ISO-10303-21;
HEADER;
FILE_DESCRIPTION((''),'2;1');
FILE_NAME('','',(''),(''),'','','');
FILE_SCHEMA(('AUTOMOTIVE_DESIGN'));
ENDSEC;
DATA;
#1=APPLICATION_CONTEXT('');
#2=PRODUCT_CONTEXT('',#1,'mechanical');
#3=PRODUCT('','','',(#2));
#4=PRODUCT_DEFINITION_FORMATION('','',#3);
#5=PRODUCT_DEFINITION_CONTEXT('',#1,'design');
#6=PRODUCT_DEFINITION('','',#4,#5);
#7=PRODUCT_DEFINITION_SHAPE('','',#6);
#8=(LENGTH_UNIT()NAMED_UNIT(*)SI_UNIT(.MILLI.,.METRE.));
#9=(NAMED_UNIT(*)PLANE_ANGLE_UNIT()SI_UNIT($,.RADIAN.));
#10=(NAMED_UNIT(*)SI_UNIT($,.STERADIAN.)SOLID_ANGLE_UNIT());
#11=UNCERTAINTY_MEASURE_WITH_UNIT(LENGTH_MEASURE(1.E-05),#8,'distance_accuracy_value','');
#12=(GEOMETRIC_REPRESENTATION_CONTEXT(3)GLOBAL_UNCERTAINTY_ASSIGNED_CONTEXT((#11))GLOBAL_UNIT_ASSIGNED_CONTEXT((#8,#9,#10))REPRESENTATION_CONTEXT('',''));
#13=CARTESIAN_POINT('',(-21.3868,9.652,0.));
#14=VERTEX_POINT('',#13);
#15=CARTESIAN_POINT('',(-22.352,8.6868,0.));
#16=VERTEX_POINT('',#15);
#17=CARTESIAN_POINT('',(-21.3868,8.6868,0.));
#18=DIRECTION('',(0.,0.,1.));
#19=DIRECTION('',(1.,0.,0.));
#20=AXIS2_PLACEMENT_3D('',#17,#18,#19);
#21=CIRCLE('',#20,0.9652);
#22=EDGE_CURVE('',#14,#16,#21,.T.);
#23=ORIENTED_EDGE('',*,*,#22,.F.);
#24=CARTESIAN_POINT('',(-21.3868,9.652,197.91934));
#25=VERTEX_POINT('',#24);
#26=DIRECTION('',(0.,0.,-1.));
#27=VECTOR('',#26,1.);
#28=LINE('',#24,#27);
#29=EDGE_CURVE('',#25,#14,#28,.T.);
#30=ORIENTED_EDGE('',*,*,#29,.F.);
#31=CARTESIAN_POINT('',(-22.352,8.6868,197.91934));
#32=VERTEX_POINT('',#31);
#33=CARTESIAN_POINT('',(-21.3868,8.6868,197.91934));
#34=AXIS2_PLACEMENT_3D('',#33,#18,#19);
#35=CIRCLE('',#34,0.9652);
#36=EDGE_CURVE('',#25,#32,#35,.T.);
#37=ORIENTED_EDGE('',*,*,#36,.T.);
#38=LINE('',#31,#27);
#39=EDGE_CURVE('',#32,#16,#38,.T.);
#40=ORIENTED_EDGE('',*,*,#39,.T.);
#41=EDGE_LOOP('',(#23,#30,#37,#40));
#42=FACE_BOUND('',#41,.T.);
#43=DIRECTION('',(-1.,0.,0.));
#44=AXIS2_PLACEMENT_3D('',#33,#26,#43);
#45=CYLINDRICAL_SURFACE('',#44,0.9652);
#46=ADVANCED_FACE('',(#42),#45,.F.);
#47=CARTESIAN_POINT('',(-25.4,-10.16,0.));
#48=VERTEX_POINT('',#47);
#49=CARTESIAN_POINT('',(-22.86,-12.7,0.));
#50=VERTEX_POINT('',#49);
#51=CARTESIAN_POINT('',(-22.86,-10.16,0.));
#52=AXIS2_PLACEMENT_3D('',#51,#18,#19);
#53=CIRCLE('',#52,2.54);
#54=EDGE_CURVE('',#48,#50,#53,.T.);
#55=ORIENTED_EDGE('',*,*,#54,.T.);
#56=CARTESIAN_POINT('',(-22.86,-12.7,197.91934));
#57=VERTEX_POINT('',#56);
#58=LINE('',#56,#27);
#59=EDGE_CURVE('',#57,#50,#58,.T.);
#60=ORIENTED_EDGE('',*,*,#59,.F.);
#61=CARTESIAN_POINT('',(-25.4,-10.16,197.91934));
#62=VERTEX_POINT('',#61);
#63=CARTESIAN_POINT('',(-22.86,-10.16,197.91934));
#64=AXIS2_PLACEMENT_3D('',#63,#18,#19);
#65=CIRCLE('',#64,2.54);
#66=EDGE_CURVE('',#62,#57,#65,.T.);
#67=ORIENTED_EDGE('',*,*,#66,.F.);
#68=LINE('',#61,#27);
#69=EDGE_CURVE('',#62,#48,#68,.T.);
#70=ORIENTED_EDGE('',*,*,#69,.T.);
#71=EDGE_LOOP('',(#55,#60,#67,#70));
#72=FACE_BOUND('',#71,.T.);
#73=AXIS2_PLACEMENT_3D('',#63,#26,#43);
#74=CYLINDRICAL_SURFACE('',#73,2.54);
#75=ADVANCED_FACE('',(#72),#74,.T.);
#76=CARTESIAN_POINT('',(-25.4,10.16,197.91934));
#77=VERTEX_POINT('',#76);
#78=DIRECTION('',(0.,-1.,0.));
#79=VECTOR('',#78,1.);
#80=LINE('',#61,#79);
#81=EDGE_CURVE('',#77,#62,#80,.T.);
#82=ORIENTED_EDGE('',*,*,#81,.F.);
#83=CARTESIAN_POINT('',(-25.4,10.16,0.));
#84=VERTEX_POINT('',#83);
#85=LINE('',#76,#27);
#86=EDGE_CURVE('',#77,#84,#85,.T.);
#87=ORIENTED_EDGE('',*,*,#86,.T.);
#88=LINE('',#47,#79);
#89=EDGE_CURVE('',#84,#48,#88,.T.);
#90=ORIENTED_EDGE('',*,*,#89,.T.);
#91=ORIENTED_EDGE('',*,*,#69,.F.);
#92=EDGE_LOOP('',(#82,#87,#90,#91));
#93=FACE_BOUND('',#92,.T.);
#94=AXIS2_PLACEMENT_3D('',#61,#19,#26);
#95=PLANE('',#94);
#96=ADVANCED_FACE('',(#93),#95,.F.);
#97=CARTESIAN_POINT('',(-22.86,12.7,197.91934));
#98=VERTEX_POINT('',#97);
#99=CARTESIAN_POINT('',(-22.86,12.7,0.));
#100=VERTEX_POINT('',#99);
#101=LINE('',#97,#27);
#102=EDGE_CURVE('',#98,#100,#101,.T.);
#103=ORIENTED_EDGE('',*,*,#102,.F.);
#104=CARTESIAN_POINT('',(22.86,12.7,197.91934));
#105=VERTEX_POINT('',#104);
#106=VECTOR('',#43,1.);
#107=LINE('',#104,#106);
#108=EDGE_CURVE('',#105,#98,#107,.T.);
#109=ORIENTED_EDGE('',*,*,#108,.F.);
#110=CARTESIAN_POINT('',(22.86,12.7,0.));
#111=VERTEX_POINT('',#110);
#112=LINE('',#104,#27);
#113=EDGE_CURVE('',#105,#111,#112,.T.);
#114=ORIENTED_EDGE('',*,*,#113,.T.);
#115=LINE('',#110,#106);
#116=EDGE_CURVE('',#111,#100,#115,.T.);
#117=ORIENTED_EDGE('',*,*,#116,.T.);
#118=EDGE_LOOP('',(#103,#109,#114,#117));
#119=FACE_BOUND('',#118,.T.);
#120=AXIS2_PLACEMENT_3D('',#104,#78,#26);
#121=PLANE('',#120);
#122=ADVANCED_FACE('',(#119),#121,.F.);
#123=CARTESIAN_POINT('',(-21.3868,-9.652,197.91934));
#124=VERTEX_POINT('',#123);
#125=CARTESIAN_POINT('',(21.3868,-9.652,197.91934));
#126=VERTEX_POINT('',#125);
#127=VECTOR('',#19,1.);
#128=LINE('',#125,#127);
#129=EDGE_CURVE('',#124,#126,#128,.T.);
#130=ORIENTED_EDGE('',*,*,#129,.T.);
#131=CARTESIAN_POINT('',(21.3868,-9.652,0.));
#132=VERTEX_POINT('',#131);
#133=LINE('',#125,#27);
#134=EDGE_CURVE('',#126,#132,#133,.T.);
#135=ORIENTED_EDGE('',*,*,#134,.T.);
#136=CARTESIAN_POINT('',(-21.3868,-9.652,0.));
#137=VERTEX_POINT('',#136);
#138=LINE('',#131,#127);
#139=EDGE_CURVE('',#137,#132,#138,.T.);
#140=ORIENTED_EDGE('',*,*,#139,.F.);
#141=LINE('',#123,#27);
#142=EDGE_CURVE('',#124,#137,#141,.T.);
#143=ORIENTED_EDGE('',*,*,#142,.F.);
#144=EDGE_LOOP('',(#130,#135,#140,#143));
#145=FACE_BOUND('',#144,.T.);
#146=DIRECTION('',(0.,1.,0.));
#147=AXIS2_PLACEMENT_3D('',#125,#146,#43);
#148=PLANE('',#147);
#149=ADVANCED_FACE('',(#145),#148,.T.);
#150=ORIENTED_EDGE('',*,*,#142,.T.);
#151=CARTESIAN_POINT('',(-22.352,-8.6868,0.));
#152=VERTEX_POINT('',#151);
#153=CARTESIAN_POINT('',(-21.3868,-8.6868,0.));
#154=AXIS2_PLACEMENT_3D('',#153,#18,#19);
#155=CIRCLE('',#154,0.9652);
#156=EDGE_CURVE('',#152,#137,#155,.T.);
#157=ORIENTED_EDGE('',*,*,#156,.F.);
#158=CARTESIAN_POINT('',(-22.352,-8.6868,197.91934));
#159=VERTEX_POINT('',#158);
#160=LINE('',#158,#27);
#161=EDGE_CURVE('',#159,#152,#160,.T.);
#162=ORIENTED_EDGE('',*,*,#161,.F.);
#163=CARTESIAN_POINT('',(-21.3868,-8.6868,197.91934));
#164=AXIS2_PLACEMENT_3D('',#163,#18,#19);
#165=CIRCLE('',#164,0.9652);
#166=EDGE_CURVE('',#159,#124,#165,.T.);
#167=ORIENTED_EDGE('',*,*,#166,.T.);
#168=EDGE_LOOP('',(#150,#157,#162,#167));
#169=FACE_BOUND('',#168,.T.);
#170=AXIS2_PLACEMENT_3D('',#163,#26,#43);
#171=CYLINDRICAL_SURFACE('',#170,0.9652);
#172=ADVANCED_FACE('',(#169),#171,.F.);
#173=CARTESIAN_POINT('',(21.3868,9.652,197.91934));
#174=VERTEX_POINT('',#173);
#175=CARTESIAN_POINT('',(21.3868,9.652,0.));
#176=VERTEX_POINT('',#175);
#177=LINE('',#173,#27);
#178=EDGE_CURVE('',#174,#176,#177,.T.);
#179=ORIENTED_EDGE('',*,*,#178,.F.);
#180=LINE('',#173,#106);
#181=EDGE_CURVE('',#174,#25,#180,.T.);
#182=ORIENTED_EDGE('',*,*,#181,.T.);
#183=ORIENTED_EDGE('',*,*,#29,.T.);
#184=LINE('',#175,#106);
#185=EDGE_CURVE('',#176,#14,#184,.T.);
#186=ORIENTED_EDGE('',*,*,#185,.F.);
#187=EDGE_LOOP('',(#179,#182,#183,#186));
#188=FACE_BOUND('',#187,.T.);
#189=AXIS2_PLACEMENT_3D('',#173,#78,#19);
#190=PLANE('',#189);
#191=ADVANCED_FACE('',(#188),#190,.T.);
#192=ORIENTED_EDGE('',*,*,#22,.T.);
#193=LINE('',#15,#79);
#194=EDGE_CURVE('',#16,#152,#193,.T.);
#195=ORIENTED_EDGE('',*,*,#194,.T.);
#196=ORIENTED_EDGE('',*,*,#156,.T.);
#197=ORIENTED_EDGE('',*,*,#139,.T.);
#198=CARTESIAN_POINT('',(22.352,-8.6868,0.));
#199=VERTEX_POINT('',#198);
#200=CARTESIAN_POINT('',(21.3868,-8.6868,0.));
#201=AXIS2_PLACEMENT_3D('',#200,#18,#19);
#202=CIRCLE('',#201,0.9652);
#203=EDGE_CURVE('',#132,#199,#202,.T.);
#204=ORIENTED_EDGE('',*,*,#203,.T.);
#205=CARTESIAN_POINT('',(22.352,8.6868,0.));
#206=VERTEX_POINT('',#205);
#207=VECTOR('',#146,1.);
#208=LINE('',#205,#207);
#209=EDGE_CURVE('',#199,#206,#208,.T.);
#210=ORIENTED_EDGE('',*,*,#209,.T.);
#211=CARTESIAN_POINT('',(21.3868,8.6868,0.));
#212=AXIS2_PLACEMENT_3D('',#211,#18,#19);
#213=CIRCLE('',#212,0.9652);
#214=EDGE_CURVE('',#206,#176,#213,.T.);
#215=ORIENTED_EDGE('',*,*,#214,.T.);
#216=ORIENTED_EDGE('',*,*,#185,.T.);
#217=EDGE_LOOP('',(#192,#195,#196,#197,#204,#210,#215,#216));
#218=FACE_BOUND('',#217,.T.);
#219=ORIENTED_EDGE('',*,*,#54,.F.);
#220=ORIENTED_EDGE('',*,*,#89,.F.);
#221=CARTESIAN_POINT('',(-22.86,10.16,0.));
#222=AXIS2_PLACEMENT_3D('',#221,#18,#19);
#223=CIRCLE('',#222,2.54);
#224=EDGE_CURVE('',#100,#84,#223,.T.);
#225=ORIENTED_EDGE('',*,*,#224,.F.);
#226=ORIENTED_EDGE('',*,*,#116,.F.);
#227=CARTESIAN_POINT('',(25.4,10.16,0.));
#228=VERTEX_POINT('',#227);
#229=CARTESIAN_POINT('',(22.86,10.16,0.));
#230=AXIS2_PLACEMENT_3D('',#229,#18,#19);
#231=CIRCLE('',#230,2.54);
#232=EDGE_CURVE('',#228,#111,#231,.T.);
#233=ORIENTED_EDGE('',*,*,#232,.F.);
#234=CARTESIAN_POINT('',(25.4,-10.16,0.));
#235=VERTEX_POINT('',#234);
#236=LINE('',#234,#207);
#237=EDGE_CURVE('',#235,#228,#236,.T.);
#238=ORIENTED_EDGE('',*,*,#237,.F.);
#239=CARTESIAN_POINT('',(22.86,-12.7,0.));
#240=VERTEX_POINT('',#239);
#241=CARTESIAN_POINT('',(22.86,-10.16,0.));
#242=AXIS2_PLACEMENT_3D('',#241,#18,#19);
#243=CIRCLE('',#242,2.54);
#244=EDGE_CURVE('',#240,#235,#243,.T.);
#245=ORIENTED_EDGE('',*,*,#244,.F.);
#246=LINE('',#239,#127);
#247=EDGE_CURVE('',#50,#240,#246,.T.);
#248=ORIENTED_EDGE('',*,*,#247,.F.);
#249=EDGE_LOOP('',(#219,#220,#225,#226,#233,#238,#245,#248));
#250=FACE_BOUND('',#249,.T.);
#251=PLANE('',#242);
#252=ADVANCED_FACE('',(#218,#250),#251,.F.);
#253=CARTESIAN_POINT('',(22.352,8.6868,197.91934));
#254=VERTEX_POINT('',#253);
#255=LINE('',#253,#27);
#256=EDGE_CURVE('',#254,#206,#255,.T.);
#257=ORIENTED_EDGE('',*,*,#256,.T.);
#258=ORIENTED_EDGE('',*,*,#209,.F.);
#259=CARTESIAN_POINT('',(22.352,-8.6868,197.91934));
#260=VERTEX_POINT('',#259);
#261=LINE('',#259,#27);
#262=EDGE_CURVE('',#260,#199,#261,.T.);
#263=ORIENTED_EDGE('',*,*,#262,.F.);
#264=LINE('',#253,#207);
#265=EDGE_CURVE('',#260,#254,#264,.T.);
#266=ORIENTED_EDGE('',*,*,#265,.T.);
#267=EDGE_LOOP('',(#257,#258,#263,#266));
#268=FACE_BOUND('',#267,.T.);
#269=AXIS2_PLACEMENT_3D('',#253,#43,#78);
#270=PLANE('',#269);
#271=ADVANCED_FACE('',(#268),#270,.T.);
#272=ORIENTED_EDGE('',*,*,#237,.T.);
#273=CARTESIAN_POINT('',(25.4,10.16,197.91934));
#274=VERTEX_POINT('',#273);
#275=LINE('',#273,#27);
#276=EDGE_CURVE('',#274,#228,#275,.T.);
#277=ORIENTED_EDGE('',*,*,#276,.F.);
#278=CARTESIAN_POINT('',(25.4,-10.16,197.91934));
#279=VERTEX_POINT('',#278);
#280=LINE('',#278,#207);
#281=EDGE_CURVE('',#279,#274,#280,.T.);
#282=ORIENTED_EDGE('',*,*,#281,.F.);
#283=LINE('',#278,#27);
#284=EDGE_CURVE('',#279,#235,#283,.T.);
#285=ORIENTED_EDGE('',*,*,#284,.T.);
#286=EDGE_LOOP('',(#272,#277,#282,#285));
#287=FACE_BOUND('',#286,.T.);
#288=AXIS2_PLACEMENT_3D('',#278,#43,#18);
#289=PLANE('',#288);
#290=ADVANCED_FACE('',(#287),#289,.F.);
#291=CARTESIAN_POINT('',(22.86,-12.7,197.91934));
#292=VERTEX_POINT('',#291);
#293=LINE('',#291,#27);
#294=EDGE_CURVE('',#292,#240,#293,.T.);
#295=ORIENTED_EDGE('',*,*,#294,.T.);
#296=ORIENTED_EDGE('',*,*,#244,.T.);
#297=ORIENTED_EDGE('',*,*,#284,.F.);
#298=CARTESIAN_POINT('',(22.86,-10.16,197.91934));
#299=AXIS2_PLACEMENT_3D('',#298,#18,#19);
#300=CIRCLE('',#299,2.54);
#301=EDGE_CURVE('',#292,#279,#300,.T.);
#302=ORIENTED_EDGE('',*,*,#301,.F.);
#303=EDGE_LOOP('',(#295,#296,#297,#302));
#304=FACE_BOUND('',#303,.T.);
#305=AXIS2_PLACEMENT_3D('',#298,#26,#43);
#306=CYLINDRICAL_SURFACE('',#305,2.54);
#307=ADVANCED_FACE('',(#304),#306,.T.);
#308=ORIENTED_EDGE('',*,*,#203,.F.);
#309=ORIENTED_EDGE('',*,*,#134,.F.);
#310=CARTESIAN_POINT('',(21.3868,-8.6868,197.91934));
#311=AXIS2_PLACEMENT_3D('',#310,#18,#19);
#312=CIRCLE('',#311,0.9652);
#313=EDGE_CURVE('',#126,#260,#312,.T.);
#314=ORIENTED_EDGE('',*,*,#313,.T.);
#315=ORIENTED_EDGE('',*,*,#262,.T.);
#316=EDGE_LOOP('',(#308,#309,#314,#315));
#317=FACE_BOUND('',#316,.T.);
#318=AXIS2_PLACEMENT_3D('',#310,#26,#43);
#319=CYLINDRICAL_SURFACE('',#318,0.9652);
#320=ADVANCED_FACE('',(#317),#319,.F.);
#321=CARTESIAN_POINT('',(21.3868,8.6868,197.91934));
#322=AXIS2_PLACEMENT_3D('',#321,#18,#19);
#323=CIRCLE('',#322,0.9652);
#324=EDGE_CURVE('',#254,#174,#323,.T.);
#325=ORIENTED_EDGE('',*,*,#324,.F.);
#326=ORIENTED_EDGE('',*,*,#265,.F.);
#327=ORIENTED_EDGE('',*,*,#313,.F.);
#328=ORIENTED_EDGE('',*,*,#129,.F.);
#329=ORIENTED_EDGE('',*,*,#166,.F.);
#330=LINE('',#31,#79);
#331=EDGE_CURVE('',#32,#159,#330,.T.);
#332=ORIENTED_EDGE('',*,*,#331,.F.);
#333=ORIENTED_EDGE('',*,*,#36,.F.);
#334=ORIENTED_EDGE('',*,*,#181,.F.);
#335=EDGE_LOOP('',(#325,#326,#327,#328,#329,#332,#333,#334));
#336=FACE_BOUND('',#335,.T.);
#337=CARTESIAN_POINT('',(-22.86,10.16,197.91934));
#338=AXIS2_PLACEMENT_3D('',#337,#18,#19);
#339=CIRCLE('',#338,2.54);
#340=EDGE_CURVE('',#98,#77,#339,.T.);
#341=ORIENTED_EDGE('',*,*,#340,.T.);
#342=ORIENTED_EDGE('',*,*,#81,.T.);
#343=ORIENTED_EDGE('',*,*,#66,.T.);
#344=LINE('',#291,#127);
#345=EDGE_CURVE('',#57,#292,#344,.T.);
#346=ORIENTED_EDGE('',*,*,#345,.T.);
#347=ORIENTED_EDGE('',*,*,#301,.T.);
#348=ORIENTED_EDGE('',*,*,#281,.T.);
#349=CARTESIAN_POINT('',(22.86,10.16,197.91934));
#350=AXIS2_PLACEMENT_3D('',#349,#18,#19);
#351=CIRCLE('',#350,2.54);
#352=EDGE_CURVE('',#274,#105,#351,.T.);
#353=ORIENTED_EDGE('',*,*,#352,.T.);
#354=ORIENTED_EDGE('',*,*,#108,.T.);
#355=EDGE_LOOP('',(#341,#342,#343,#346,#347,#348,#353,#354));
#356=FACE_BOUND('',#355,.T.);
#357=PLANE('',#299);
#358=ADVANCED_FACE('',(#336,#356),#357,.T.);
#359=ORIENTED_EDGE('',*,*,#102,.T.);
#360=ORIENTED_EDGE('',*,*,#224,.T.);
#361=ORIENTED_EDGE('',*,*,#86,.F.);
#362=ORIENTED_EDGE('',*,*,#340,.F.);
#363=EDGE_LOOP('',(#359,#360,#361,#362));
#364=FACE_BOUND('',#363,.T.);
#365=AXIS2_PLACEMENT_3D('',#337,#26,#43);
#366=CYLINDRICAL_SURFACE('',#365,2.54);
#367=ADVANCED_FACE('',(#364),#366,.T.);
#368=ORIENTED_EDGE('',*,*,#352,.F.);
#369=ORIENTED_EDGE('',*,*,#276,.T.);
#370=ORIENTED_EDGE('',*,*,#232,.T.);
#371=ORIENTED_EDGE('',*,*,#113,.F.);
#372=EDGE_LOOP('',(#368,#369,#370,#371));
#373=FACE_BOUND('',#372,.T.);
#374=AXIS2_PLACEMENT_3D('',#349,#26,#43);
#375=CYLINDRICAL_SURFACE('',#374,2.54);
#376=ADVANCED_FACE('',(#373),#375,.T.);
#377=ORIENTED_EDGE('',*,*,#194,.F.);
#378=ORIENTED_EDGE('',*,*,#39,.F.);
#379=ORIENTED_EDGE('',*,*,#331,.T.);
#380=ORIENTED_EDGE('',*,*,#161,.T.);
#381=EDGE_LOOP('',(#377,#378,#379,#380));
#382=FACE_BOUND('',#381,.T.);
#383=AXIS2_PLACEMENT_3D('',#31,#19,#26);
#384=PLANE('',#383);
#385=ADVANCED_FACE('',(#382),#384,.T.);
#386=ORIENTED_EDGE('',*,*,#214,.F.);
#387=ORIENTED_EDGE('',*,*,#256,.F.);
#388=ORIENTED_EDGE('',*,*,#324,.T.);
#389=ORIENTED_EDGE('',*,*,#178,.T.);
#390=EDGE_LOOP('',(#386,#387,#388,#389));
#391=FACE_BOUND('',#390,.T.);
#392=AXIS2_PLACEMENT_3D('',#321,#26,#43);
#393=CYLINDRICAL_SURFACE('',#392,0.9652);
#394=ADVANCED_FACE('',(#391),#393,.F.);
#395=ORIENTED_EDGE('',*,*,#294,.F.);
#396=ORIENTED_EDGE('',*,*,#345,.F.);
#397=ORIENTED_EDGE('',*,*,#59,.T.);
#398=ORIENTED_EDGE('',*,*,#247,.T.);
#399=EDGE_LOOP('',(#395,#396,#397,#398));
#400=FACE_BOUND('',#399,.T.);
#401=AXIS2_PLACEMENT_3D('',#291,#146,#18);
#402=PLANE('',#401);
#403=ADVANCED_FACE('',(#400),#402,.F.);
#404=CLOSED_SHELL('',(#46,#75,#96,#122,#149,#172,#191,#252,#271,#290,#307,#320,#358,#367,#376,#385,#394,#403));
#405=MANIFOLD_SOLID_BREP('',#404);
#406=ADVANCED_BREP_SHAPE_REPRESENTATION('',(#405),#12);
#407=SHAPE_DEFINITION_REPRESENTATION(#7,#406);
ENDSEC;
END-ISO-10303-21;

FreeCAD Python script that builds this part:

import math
import FreeCAD as App
import Part
import Sketcher
from FreeCAD import Vector
Q = App.Units.Quantity

doc = App.newDocument("Part")
body = doc.addObject("PartDesign::Body", "Body")

# Sketch on XY plane
sketch1 = body.newObject("Sketcher::SketchObject", "Sketch")
sketch1.AttachmentSupport = (doc.getObject("XY_Plane"), [""])
sketch1.MapMode = "FlatFace"
sketch1.addGeometry(Part.LineSegment(Vector(25.4, -10.2, 0), Vector(25.4, 10.2, 0)), False)
sketch1.addGeometry(Part.ArcOfCircle(Part.Circle(Vector(22.9, 10.2, 0), Vector(0, 0, 1), 2.5), math.radians(0), math.radians(90)), False)
sketch1.addGeometry(Part.LineSegment(Vector(22.9, 12.7, 0), Vector(-22.9, 12.7, 0)), False)
sketch1.addGeometry(Part.ArcOfCircle(Part.Circle(Vector(-22.9, 10.2, 0), Vector(0, 0, 1), 2.5), math.radians(90), math.radians(180)), False)
sketch1.addGeometry(Part.LineSegment(Vector(-25.4, 10.2, 0), Vector(-25.4, -10.2, 0)), False)
sketch1.addGeometry(Part.ArcOfCircle(Part.Circle(Vector(-22.9, -10.2, 0), Vector(0, 0, 1), 2.5), math.radians(-180), math.radians(-90)), False)
sketch1.addGeometry(Part.LineSegment(Vector(-22.9, -12.7, 0), Vector(22.9, -12.7, 0)), False)
sketch1.addGeometry(Part.ArcOfCircle(Part.Circle(Vector(22.9, -10.2, 0), Vector(0, 0, 1), 2.5), math.radians(-90), math.radians(0)), False)
sketch1.addGeometry(Part.ArcOfCircle(Part.Circle(Vector(21.4, 8.7, 0), Vector(0, 0, 1), 1), math.radians(0), math.radians(90)), False)
sketch1.addGeometry(Part.LineSegment(Vector(22.4, 8.7, 0), Vector(22.4, -8.7, 0)), False)
sketch1.addGeometry(Part.ArcOfCircle(Part.Circle(Vector(21.4, -8.7, 0), Vector(0, 0, 1), 1), math.radians(-90), math.radians(0)), False)
sketch1.addGeometry(Part.LineSegment(Vector(21.4, -9.7, 0), Vector(-21.4, -9.7, 0)), False)
sketch1.addGeometry(Part.ArcOfCircle(Part.Circle(Vector(-21.4, -8.7, 0), Vector(0, 0, 1), 1), math.radians(-180), math.radians(-90)), False)
sketch1.addGeometry(Part.LineSegment(Vector(-22.4, -8.7, 0), Vector(-22.4, 8.7, 0)), False)
sketch1.addGeometry(Part.ArcOfCircle(Part.Circle(Vector(-21.4, 8.7, 0), Vector(0, 0, 1), 1), math.radians(90), math.radians(180)), False)
sketch1.addGeometry(Part.LineSegment(Vector(-21.4, 9.7, 0), Vector(21.4, 9.7, 0)), False)
sketch1.addConstraint(Sketcher.Constraint("Tangent", 0, 2, 1, 1))
sketch1.addConstraint(Sketcher.Constraint("Tangent", 1, 2, 2, 1))
sketch1.addConstraint(Sketcher.Constraint("Tangent", 2, 2, 3, 1))
sketch1.addConstraint(Sketcher.Constraint("Tangent", 3, 2, 4, 1))
sketch1.addConstraint(Sketcher.Constraint("Tangent", 4, 2, 5, 1))
sketch1.addConstraint(Sketcher.Constraint("Tangent", 5, 2, 6, 1))
sketch1.addConstraint(Sketcher.Constraint("Tangent", 6, 2, 7, 1))
sketch1.addConstraint(Sketcher.Constraint("Tangent", 7, 2, 0, 1))
sketch1.addConstraint(Sketcher.Constraint("Tangent", 8, 1, 9, 1))
sketch1.addConstraint(Sketcher.Constraint("Tangent", 9, 2, 10, 2))
sketch1.addConstraint(Sketcher.Constraint("Tangent", 10, 1, 11, 1))
sketch1.addConstraint(Sketcher.Constraint("Tangent", 11, 2, 12, 2))
sketch1.addConstraint(Sketcher.Constraint("Tangent", 12, 1, 13, 1))
sketch1.addConstraint(Sketcher.Constraint("Tangent", 13, 2, 14, 2))
sketch1.addConstraint(Sketcher.Constraint("Tangent", 14, 1, 15, 1))
sketch1.addConstraint(Sketcher.Constraint("Tangent", 15, 2, 8, 2))
sketch1.addConstraint(Sketcher.Constraint("Vertical", 0))
sketch1.addConstraint(Sketcher.Constraint("Horizontal", 2))
sketch1.addConstraint(Sketcher.Constraint("Vertical", 4))
sketch1.addConstraint(Sketcher.Constraint("Horizontal", 6))
sketch1.addConstraint(Sketcher.Constraint("Vertical", 9))
sketch1.addConstraint(Sketcher.Constraint("Horizontal", 11))
sketch1.addConstraint(Sketcher.Constraint("Vertical", 13))
sketch1.addConstraint(Sketcher.Constraint("Horizontal", 15))
sketch1.addConstraint(Sketcher.Constraint("Equal", 1, 3))
sketch1.addConstraint(Sketcher.Constraint("Equal", 3, 5))
sketch1.addConstraint(Sketcher.Constraint("Equal", 5, 7))
sketch1.addConstraint(Sketcher.Constraint("Equal", 8, 10))
sketch1.addConstraint(Sketcher.Constraint("Equal", 10, 12))
sketch1.addConstraint(Sketcher.Constraint("Equal", 12, 14))
sketch1.addConstraint(Sketcher.Constraint("Symmetric", 1, 3, 5, 3, -1, 1))
sketch1.addConstraint(Sketcher.Constraint("Symmetric", 8, 3, 12, 3, -1, 1))
sketch1.addConstraint(Sketcher.Constraint("Radius", 1, Q("0.1 in")))
sketch1.addConstraint(Sketcher.Constraint("DistanceX", 2, 2, 2, 1, Q("1.8 in")))
sketch1.addConstraint(Sketcher.Constraint("DistanceY", 0, 1, 0, 2, Q("0.8 in")))
sketch1.addConstraint(Sketcher.Constraint("Radius", 8, Q("0.038 in")))
sketch1.addConstraint(Sketcher.Constraint("DistanceX", 11, 2, 11, 1, Q("1.684 in")))
sketch1.addConstraint(Sketcher.Constraint("DistanceY", 9, 2, 9, 1, Q("0.684 in")))
pad1 = body.newObject("PartDesign::Pad", "Pad")
pad1.Profile = sketch1
pad1.Length = Q("7.7921 in")

doc.recompute()
